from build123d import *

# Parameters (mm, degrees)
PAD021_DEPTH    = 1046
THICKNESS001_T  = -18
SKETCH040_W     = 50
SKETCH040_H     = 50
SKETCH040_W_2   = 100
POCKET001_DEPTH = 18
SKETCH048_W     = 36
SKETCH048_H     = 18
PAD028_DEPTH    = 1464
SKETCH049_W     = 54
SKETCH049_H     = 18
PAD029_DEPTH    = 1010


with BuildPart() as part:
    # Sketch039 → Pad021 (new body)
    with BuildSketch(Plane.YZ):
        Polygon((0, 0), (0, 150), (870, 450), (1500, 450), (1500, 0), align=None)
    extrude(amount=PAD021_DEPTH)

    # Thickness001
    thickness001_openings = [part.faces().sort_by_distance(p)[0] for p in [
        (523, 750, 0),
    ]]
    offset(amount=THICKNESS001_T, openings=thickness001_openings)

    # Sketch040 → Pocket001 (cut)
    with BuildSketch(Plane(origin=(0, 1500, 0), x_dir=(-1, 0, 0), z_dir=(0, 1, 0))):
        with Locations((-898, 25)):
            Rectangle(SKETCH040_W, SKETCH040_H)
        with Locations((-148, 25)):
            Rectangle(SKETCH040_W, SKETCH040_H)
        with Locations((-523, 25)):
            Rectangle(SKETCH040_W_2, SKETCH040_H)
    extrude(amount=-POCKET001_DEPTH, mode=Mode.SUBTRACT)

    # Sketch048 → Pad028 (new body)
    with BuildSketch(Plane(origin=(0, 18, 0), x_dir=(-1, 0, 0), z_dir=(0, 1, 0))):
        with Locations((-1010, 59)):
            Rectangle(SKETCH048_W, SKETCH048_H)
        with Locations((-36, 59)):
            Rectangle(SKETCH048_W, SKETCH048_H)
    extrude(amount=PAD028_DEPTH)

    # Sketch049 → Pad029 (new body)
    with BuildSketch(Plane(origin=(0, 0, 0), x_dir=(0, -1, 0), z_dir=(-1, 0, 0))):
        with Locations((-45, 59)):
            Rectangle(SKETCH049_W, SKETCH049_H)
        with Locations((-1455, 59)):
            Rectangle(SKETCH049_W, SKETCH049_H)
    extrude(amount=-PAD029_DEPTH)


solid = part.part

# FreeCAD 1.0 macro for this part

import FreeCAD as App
import Part
import Sketcher
Q = App.Units.Quantity


def faces_at(feature, points):
    """Names of the faces that lie closest to the given points."""
    faces = feature.Shape.Faces
    near = lambda p: min(range(len(faces)), key=lambda i: faces[i].distToShape(Part.Vertex(*p))[0])
    return sorted({f"Face{near(p) + 1}" for p in points})

doc = App.newDocument("Part")
body = doc.addObject("PartDesign::Body", "Body")

# Sketch on YZ plane
sketch1 = body.newObject("Sketcher::SketchObject", "Sketch")
sketch1.AttachmentSupport = (doc.getObject("YZ_Plane"), [""])
sketch1.MapMode = "FlatFace"
sketch1.addGeometry([
    Part.LineSegment(App.Vector(0, 150, 0), App.Vector(0, 0, 0)),  # 0
    Part.LineSegment(App.Vector(0, 0, 0), App.Vector(1500, 0, 0)),  # 1
    Part.LineSegment(App.Vector(1500, 0, 0), App.Vector(1500, 450, 0)),  # 2
    Part.LineSegment(App.Vector(1500, 450, 0), App.Vector(870, 450, 0)),  # 3
    Part.LineSegment(App.Vector(870, 450, 0), App.Vector(0, 150, 0)),  # 4
], False)
sketch1.addConstraint([
    Sketcher.Constraint("Coincident", 0, 2, 1, 1),
    Sketcher.Constraint("Coincident", 1, 2, 2, 1),
    Sketcher.Constraint("Coincident", 2, 2, 3, 1),
    Sketcher.Constraint("Coincident", 3, 2, 4, 1),
    Sketcher.Constraint("Coincident", 4, 2, 0, 1),
    Sketcher.Constraint("Vertical", 0),
    Sketcher.Constraint("Horizontal", 1),
    Sketcher.Constraint("Vertical", 2),
    Sketcher.Constraint("Horizontal", 3),
    Sketcher.Constraint("Coincident", 0, 2, -1, 1),
    Sketcher.Constraint("DistanceX", 1, 1, 1, 2, Q("1500 mm")),
    Sketcher.Constraint("DistanceX", 3, 2, 3, 1, Q("630 mm")),
    Sketcher.Constraint("DistanceY", 0, 2, 0, 1, Q("150 mm")),
    Sketcher.Constraint("DistanceY", 2, 1, 2, 2, Q("450 mm")),
])
pad1 = body.newObject("PartDesign::Pad", "Pad")
pad1.Profile = sketch1
pad1.Length = 1046
doc.recompute()

thickness = body.newObject("PartDesign::Thickness", "Thickness")
thickness.Base = (pad1, faces_at(pad1, [(523, 750, 0)]))
thickness.Value = 18
thickness.Reversed = True
thickness.Join = "Arc"

# Sketch on XZ plane
sketch2 = body.newObject("Sketcher::SketchObject", "Sketch001")
sketch2.AttachmentSupport = (doc.getObject("XZ_Plane"), [""])
sketch2.MapMode = "FlatFace"
sketch2.AttachmentOffset = App.Placement(App.Vector(0, 0, -1500), App.Rotation())
sketch2.addGeometry([
    Part.LineSegment(App.Vector(923, 50, 0), App.Vector(923, 0, 0)),  # 0
    Part.LineSegment(App.Vector(923, 0, 0), App.Vector(873, 0, 0)),  # 1
    Part.LineSegment(App.Vector(873, 0, 0), App.Vector(873, 50, 0)),  # 2
    Part.LineSegment(App.Vector(873, 50, 0), App.Vector(923, 50, 0)),  # 3
    Part.LineSegment(App.Vector(173, 50, 0), App.Vector(173, 0, 0)),  # 4
    Part.LineSegment(App.Vector(173, 0, 0), App.Vector(123, 0, 0)),  # 5
    Part.LineSegment(App.Vector(123, 0, 0), App.Vector(123, 50, 0)),  # 6
    Part.LineSegment(App.Vector(123, 50, 0), App.Vector(173, 50, 0)),  # 7
    Part.LineSegment(App.Vector(573, 50, 0), App.Vector(573, 0, 0)),  # 8
    Part.LineSegment(App.Vector(573, 0, 0), App.Vector(473, 0, 0)),  # 9
    Part.LineSegment(App.Vector(473, 0, 0), App.Vector(473, 50, 0)),  # 10
    Part.LineSegment(App.Vector(473, 50, 0), App.Vector(573, 50, 0)),  # 11
], False)
sketch2.addConstraint([
    Sketcher.Constraint("Coincident", 0, 2, 1, 1),
    Sketcher.Constraint("Coincident", 1, 2, 2, 1),
    Sketcher.Constraint("Coincident", 2, 2, 3, 1),
    Sketcher.Constraint("Coincident", 3, 2, 0, 1),
    Sketcher.Constraint("Coincident", 4, 2, 5, 1),
    Sketcher.Constraint("Coincident", 5, 2, 6, 1),
    Sketcher.Constraint("Coincident", 6, 2, 7, 1),
    Sketcher.Constraint("Coincident", 7, 2, 4, 1),
    Sketcher.Constraint("Coincident", 8, 2, 9, 1),
    Sketcher.Constraint("Coincident", 9, 2, 10, 1),
    Sketcher.Constraint("Coincident", 10, 2, 11, 1),
    Sketcher.Constraint("Coincident", 11, 2, 8, 1),
    Sketcher.Constraint("Vertical", 0),
    Sketcher.Constraint("Horizontal", 1),
    Sketcher.Constraint("Vertical", 2),
    Sketcher.Constraint("Horizontal", 3),
    Sketcher.Constraint("Vertical", 4),
    Sketcher.Constraint("Horizontal", 5),
    Sketcher.Constraint("Vertical", 6),
    Sketcher.Constraint("Horizontal", 7),
    Sketcher.Constraint("Vertical", 8),
    Sketcher.Constraint("Horizontal", 9),
    Sketcher.Constraint("Vertical", 10),
    Sketcher.Constraint("Horizontal", 11),
    Sketcher.Constraint("PointOnObject", 0, 2, -1),
    Sketcher.Constraint("PointOnObject", 4, 2, -1),
    Sketcher.Constraint("PointOnObject", 8, 2, -1),
    Sketcher.Constraint("Horizontal", 3, 2, 6, 2),
    Sketcher.Constraint("Horizontal", 7, 2, 10, 2),
    Sketcher.Constraint("Equal", 3, 5),
    Sketcher.Constraint("Equal", 7, 0),
    Sketcher.Constraint("DistanceX", 1, 2, 1, 1, Q("50 mm")),
    Sketcher.Constraint("DistanceX", 9, 2, 9, 1, Q("100 mm")),
    Sketcher.Constraint("DistanceX", -1, 1, 0, 2, Q("923 mm")),
    Sketcher.Constraint("DistanceX", -1, 1, 4, 2, Q("173 mm")),
    Sketcher.Constraint("DistanceX", -1, 1, 8, 2, Q("573 mm")),
])
pocket1 = body.newObject("PartDesign::Pocket", "Pocket")
pocket1.Profile = sketch2
pocket1.Length = 18
pocket1.Reversed = True

# Sketch on XZ plane
sketch3 = body.newObject("Sketcher::SketchObject", "Sketch002")
sketch3.AttachmentSupport = (doc.getObject("XZ_Plane"), [""])
sketch3.MapMode = "FlatFace"
sketch3.AttachmentOffset = App.Placement(App.Vector(0, 0, -18), App.Rotation())
sketch3.addGeometry([
    Part.LineSegment(App.Vector(1028, 68, 0), App.Vector(1028, 50, 0)),  # 0
    Part.LineSegment(App.Vector(1028, 50, 0), App.Vector(992, 50, 0)),  # 1
    Part.LineSegment(App.Vector(992, 50, 0), App.Vector(992, 68, 0)),  # 2
    Part.LineSegment(App.Vector(992, 68, 0), App.Vector(1028, 68, 0)),  # 3
    Part.LineSegment(App.Vector(54, 68, 0), App.Vector(54, 50, 0)),  # 4
    Part.LineSegment(App.Vector(54, 50, 0), App.Vector(18, 50, 0)),  # 5
    Part.LineSegment(App.Vector(18, 50, 0), App.Vector(18, 68, 0)),  # 6
    Part.LineSegment(App.Vector(18, 68, 0), App.Vector(54, 68, 0)),  # 7
], False)
sketch3.addConstraint([
    Sketcher.Constraint("Coincident", 0, 2, 1, 1),
    Sketcher.Constraint("Coincident", 1, 2, 2, 1),
    Sketcher.Constraint("Coincident", 2, 2, 3, 1),
    Sketcher.Constraint("Coincident", 3, 2, 0, 1),
    Sketcher.Constraint("Coincident", 4, 2, 5, 1),
    Sketcher.Constraint("Coincident", 5, 2, 6, 1),
    Sketcher.Constraint("Coincident", 6, 2, 7, 1),
    Sketcher.Constraint("Coincident", 7, 2, 4, 1),
    Sketcher.Constraint("Vertical", 0),
    Sketcher.Constraint("Horizontal", 1),
    Sketcher.Constraint("Vertical", 2),
    Sketcher.Constraint("Horizontal", 3),
    Sketcher.Constraint("Vertical", 4),
    Sketcher.Constraint("Horizontal", 5),
    Sketcher.Constraint("Vertical", 6),
    Sketcher.Constraint("Horizontal", 7),
    Sketcher.Constraint("Horizontal", 1, 2, 4, 2),
    Sketcher.Constraint("Horizontal", 3, 2, 6, 2),
    Sketcher.Constraint("Equal", 3, 5),
    Sketcher.Constraint("DistanceX", 1, 2, 1, 1, Q("36 mm")),
    Sketcher.Constraint("DistanceY", 0, 2, 0, 1, Q("18 mm")),
    Sketcher.Constraint("DistanceX", -1, 1, 0, 2, Q("1028 mm")),
    Sketcher.Constraint("DistanceY", -1, 1, 0, 2, Q("50 mm")),
    Sketcher.Constraint("DistanceX", -1, 1, 4, 2, Q("54 mm")),
])
pad2 = body.newObject("PartDesign::Pad", "Pad001")
pad2.Profile = sketch3
pad2.Length = 1464
pad2.Reversed = True

# Sketch on YZ plane
sketch4 = body.newObject("Sketcher::SketchObject", "Sketch003")
sketch4.AttachmentSupport = (doc.getObject("YZ_Plane"), [""])
sketch4.MapMode = "FlatFace"
sketch4.addGeometry([
    Part.LineSegment(App.Vector(72, 68, 0), App.Vector(72, 50, 0)),  # 0
    Part.LineSegment(App.Vector(72, 50, 0), App.Vector(18, 50, 0)),  # 1
    Part.LineSegment(App.Vector(18, 50, 0), App.Vector(18, 68, 0)),  # 2
    Part.LineSegment(App.Vector(18, 68, 0), App.Vector(72, 68, 0)),  # 3
    Part.LineSegment(App.Vector(1482, 68, 0), App.Vector(1482, 50, 0)),  # 4
    Part.LineSegment(App.Vector(1482, 50, 0), App.Vector(1428, 50, 0)),  # 5
    Part.LineSegment(App.Vector(1428, 50, 0), App.Vector(1428, 68, 0)),  # 6
    Part.LineSegment(App.Vector(1428, 68, 0), App.Vector(1482, 68, 0)),  # 7
], False)
sketch4.addConstraint([
    Sketcher.Constraint("Coincident", 0, 2, 1, 1),
    Sketcher.Constraint("Coincident", 1, 2, 2, 1),
    Sketcher.Constraint("Coincident", 2, 2, 3, 1),
    Sketcher.Constraint("Coincident", 3, 2, 0, 1),
    Sketcher.Constraint("Coincident", 4, 2, 5, 1),
    Sketcher.Constraint("Coincident", 5, 2, 6, 1),
    Sketcher.Constraint("Coincident", 6, 2, 7, 1),
    Sketcher.Constraint("Coincident", 7, 2, 4, 1),
    Sketcher.Constraint("Vertical", 0),
    Sketcher.Constraint("Horizontal", 1),
    Sketcher.Constraint("Vertical", 2),
    Sketcher.Constraint("Horizontal", 3),
    Sketcher.Constraint("Vertical", 4),
    Sketcher.Constraint("Horizontal", 5),
    Sketcher.Constraint("Vertical", 6),
    Sketcher.Constraint("Horizontal", 7),
    Sketcher.Constraint("Horizontal", 1, 2, 4, 2),
    Sketcher.Constraint("Horizontal", 3, 2, 6, 2),
    Sketcher.Constraint("Equal", 3, 5),
    Sketcher.Constraint("DistanceX", 1, 2, 1, 1, Q("54 mm")),
    Sketcher.Constraint("DistanceY", 0, 2, 0, 1, Q("18 mm")),
    Sketcher.Constraint("DistanceX", -1, 1, 0, 2, Q("72 mm")),
    Sketcher.Constraint("DistanceY", -1, 1, 0, 2, Q("50 mm")),
    Sketcher.Constraint("DistanceX", -1, 1, 4, 2, Q("1482 mm")),
])
pad3 = body.newObject("PartDesign::Pad", "Pad002")
pad3.Profile = sketch4
pad3.Length = 1010

doc.recompute()
